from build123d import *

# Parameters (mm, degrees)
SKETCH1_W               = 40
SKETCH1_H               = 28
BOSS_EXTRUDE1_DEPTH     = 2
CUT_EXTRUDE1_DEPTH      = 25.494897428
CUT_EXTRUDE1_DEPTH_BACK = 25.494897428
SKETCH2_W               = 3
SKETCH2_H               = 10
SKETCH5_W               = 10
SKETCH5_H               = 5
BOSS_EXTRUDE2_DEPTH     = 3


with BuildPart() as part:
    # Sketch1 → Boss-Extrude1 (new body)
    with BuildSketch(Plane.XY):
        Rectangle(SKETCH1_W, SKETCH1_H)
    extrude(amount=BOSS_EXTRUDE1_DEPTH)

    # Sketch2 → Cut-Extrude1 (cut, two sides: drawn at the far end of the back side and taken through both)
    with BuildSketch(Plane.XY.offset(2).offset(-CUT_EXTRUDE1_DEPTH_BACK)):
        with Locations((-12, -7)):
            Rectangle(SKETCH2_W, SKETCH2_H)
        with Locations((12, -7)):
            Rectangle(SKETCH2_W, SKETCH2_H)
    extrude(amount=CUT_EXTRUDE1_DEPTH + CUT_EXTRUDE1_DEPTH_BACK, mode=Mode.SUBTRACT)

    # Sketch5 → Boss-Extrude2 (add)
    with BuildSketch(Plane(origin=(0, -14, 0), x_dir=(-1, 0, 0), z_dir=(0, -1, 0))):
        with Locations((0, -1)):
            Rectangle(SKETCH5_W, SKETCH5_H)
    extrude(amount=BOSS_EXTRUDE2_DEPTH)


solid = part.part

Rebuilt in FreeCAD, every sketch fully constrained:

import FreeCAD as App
import Part
import Sketcher

V = App.Vector


def add_polygon(sketch, points):
    """Adds a closed chain of lines whose ends are joined by coincident constraints."""
    first, n = sketch.GeometryCount, len(points)
    for a, b in zip(points, points[1:] + points[:1]):
        sketch.addGeometry(Part.LineSegment(App.Vector(*a, 0), App.Vector(*b, 0)), False)
    for i in range(n):
        sketch.addConstraint(Sketcher.Constraint("Coincident", first + i, 2, first + (i + 1) % n, 1))

doc = App.newDocument("Part")
body = doc.addObject("PartDesign::Body", "Body")

# Sketch on XY plane
sketch1 = body.newObject("Sketcher::SketchObject", "Sketch")
sketch1.AttachmentSupport = (doc.getObject("XY_Plane"), [""])
sketch1.MapMode = "FlatFace"
add_polygon(sketch1, [(-20, 14), (-20, -14), (20, -14), (20, 14)])  # lines 0-3
sketch1.addConstraint([
    Sketcher.Constraint("Vertical", 0),
    Sketcher.Constraint("Horizontal", 1),
    Sketcher.Constraint("Vertical", 2),
    Sketcher.Constraint("Horizontal", 3),
    Sketcher.Constraint("Symmetric", 0, 2, 2, 2, -1, 1),
    Sketcher.Constraint("DistanceX", 1, 1, 1, 2, 40.0),
    Sketcher.Constraint("DistanceY", 0, 2, 0, 1, 28.0),
])
pad1 = body.newObject("PartDesign::Pad", "Pad")
pad1.Profile = sketch1
pad1.Length = 2

# Sketch on XY plane
sketch2 = body.newObject("Sketcher::SketchObject", "Sketch001")
sketch2.AttachmentSupport = (doc.getObject("XY_Plane"), [""])
sketch2.MapMode = "FlatFace"
sketch2.AttachmentOffset = App.Placement(V(0, 0, 2), App.Rotation())
add_polygon(sketch2, [(-13.5, -2), (-13.5, -12), (-10.5, -12), (-10.5, -2)])  # lines 0-3
add_polygon(sketch2, [(10.5, -2), (10.5, -12), (13.5, -12), (13.5, -2)])  # lines 4-7
sketch2.addConstraint([
    Sketcher.Constraint("Vertical", 0),
    Sketcher.Constraint("Horizontal", 1),
    Sketcher.Constraint("Vertical", 2),
    Sketcher.Constraint("Horizontal", 3),
    Sketcher.Constraint("Vertical", 4),
    Sketcher.Constraint("Horizontal", 5),
    Sketcher.Constraint("Vertical", 6),
    Sketcher.Constraint("Horizontal", 7),
    Sketcher.Constraint("Symmetric", 1, 2, 4, 2, -2),
    Sketcher.Constraint("Symmetric", 3, 2, 6, 2, -2),
    Sketcher.Constraint("DistanceX", 1, 1, 1, 2, 3.0),
    Sketcher.Constraint("DistanceY", 0, 2, 0, 1, 10.0),
    Sketcher.Constraint("DistanceY", 0, 2, -1, 1, 12.0),
    Sketcher.Constraint("DistanceX", 1, 2, 4, 2, 21.0),
])
pocket1 = body.newObject("PartDesign::Pocket", "Pocket")
pocket1.Profile = sketch2
pocket1.Type = "ThroughAll"
pocket1.Midplane = True

# Sketch on XZ plane
sketch3 = body.newObject("Sketcher::SketchObject", "Sketch002")
sketch3.AttachmentSupport = (doc.getObject("XZ_Plane"), [""])
sketch3.MapMode = "FlatFace"
sketch3.AttachmentOffset = App.Placement(V(0, 0, 14), App.Rotation())
add_polygon(sketch3, [(5, -2), (5, 4), (-5, 4), (-5, -2)])  # lines 0-3
sketch3.addConstraint([
    Sketcher.Constraint("Vertical", 0),
    Sketcher.Constraint("Horizontal", 1),
    Sketcher.Constraint("Vertical", 2),
    Sketcher.Constraint("Horizontal", 3),
    Sketcher.Constraint("DistanceX", 1, 2, 1, 1, 10.0),
    Sketcher.Constraint("DistanceY", 0, 1, 0, 2, 5.0),
    Sketcher.Constraint("DistanceX", -1, 1, 0, 2, 5.0),
    Sketcher.Constraint("DistanceY", -1, 1, 0, 2, 3.5),
])
pad2 = body.newObject("PartDesign::Pad", "Pad001")
pad2.Profile = sketch3
pad2.Length = 3

doc.recompute()
